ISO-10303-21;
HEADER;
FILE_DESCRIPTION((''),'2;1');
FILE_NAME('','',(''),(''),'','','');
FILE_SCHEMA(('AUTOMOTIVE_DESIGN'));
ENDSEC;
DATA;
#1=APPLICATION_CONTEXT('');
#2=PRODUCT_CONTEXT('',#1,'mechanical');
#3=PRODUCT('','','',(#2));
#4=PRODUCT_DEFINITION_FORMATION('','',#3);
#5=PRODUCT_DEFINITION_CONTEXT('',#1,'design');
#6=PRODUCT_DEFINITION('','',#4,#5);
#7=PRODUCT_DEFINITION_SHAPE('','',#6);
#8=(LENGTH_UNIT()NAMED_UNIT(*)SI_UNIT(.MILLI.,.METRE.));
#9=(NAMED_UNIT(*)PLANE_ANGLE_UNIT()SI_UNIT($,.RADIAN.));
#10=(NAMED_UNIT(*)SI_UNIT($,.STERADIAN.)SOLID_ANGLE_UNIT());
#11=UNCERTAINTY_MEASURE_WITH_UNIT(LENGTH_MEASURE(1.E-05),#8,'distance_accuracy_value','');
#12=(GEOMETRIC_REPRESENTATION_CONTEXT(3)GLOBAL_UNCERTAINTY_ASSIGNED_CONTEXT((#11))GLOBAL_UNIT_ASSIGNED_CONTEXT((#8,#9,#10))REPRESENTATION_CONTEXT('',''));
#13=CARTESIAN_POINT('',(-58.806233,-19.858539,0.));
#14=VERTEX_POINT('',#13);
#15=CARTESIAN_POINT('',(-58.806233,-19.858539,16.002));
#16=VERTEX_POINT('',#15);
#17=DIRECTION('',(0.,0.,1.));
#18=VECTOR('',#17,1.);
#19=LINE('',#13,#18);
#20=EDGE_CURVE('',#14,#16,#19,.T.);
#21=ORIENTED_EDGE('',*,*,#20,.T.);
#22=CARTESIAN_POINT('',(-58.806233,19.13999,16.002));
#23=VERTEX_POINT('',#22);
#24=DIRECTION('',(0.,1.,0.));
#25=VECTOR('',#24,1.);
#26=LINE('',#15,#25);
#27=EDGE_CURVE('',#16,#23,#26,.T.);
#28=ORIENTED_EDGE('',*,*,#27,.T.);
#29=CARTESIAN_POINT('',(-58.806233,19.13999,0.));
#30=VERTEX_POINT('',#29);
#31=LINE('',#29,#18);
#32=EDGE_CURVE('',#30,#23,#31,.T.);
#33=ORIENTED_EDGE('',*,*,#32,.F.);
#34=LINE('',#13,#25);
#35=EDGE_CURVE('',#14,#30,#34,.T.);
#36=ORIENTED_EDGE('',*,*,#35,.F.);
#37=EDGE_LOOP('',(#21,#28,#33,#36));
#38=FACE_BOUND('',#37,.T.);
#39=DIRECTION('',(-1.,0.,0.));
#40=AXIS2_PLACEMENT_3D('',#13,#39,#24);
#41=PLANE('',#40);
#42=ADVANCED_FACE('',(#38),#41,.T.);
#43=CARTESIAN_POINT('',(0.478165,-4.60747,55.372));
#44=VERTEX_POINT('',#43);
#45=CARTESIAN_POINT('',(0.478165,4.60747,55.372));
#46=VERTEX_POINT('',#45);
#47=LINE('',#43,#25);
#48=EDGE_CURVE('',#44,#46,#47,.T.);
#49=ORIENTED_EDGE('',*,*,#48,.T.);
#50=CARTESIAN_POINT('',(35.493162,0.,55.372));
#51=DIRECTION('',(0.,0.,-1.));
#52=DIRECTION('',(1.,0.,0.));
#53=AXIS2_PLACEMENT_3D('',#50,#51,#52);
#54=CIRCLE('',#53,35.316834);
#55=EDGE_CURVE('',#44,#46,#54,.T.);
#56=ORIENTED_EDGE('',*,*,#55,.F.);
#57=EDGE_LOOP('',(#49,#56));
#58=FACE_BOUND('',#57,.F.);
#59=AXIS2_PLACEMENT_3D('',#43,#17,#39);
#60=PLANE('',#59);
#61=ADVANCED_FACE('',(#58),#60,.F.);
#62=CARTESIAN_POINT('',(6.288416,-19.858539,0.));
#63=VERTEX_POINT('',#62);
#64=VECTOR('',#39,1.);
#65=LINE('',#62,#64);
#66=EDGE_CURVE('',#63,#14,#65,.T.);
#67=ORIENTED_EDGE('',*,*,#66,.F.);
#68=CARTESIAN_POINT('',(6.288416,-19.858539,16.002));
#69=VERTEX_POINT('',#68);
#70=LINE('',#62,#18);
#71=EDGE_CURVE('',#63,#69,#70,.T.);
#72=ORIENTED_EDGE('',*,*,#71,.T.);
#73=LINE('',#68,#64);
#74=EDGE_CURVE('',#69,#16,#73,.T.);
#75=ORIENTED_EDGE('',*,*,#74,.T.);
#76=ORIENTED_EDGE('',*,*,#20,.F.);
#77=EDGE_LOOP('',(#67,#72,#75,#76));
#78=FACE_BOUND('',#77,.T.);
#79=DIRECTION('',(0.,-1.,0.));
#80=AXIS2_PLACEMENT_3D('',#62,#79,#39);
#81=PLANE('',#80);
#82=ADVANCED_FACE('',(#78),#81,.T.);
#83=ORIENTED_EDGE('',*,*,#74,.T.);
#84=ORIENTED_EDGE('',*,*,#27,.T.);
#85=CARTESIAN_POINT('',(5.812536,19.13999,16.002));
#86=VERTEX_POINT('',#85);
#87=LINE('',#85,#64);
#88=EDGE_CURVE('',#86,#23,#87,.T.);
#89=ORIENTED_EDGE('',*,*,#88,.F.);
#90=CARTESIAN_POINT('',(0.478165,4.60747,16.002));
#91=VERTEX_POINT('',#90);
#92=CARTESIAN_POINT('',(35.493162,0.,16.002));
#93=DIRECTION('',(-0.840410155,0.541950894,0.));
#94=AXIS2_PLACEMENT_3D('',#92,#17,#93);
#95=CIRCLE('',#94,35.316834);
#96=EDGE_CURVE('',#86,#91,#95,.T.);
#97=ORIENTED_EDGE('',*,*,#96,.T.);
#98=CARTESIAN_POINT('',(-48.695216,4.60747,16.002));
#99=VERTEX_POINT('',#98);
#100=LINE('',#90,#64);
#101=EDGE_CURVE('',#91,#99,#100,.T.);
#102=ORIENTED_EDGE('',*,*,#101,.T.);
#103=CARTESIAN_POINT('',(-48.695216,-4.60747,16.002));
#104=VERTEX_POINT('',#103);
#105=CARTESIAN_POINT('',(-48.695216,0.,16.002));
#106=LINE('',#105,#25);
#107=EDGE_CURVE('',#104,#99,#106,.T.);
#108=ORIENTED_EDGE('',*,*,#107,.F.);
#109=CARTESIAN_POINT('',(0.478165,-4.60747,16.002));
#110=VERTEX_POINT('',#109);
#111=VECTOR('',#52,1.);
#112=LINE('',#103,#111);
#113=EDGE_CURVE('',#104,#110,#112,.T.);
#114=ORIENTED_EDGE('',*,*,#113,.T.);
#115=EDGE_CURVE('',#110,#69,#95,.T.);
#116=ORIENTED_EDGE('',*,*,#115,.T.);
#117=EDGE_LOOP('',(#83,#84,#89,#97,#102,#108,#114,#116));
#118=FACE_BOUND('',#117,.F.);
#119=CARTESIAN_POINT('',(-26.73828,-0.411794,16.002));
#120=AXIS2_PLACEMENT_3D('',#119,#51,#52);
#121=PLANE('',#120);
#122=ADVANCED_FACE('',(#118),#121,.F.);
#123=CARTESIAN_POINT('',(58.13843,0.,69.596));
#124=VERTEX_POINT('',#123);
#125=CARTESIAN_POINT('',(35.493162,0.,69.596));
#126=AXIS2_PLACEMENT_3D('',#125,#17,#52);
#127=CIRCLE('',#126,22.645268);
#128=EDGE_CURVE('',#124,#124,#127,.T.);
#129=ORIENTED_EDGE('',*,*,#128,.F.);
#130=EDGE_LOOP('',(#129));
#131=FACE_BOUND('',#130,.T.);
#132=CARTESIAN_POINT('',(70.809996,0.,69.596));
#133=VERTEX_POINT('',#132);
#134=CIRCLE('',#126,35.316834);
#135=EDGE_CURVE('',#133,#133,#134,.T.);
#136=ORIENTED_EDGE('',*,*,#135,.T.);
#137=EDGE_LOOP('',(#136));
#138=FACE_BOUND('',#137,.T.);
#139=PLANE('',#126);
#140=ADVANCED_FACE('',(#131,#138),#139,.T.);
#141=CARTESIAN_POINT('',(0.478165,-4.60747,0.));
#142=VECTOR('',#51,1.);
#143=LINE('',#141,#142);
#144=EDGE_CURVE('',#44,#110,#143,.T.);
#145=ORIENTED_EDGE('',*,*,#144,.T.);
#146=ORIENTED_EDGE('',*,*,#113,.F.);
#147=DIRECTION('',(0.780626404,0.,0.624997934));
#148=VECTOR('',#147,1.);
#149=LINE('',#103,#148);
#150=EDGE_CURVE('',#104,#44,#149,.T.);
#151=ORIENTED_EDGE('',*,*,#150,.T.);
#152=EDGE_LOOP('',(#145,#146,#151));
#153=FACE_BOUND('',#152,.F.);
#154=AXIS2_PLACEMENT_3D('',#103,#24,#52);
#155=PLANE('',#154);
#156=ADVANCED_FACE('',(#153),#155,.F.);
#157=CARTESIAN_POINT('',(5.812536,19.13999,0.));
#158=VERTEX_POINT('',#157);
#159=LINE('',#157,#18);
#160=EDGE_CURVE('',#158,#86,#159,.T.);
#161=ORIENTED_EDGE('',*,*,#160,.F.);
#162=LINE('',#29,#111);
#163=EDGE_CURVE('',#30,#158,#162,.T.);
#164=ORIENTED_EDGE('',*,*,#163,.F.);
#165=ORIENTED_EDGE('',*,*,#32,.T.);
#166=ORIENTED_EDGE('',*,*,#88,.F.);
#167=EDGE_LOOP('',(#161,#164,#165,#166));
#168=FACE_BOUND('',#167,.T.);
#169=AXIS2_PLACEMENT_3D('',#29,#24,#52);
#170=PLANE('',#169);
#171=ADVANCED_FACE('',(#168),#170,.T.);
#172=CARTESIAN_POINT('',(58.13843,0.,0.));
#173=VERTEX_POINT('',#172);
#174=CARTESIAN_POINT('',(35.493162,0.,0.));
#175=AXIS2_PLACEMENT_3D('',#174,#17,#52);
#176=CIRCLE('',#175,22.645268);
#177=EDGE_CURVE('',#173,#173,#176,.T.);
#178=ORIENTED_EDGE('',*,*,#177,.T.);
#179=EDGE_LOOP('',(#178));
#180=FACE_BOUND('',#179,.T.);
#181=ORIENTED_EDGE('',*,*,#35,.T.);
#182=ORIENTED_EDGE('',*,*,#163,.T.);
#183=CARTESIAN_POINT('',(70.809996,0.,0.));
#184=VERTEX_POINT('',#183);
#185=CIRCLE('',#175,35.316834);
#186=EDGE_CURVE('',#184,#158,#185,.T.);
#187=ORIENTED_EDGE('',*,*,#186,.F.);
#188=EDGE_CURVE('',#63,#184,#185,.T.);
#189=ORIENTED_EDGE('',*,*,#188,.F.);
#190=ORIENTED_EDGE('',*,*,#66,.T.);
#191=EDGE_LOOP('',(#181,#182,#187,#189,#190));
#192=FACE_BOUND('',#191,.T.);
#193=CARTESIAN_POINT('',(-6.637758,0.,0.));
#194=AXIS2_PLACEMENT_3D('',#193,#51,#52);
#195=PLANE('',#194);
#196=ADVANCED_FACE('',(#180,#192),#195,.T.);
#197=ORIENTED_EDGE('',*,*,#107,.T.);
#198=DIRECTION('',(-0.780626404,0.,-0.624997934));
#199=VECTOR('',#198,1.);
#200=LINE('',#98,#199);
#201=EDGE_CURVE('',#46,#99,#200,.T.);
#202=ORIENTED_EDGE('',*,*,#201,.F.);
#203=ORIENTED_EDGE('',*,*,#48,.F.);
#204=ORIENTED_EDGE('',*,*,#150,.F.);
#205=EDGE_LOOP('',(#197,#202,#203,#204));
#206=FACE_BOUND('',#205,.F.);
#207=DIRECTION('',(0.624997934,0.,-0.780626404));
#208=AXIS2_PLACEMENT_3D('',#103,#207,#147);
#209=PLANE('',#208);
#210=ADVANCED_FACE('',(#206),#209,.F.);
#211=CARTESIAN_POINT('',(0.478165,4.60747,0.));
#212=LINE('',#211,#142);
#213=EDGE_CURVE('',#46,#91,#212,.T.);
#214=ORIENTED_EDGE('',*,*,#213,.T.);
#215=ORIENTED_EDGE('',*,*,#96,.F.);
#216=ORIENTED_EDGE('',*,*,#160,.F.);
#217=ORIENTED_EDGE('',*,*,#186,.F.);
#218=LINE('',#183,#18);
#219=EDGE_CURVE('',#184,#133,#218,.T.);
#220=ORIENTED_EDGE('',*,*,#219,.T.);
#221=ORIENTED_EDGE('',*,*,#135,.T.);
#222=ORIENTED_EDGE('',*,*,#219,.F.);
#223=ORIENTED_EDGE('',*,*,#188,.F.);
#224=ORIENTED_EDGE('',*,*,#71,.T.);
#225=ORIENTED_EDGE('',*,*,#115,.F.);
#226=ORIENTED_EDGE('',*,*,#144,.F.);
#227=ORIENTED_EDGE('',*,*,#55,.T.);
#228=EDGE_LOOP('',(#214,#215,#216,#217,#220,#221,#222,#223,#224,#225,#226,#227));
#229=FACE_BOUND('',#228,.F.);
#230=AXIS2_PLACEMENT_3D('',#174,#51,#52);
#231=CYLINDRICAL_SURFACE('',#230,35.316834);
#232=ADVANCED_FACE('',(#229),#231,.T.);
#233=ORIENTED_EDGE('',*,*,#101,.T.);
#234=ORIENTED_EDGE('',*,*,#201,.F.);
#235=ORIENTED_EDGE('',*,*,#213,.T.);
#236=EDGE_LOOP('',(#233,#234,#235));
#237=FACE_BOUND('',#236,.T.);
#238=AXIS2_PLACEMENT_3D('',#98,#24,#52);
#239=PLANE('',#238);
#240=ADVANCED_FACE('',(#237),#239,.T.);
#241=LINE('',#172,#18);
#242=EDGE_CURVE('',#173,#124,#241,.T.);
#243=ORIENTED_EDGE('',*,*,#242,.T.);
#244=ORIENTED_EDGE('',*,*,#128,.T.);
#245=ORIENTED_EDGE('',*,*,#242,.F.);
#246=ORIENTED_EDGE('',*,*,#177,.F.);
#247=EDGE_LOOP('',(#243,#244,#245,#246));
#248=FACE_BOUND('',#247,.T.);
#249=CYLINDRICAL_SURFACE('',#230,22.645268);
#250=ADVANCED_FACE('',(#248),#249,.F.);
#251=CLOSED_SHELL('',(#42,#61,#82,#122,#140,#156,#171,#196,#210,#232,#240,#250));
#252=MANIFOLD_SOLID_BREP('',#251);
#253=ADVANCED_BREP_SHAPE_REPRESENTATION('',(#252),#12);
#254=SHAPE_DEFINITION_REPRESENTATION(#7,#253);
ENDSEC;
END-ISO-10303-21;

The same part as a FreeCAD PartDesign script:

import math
import FreeCAD as App
import Part
import Sketcher
from FreeCAD import Vector
Q = App.Units.Quantity


def add_polygon(sketch, points):
    """Adds a closed chain of lines whose ends are joined by coincident constraints."""
    first, n = sketch.GeometryCount, len(points)
    for a, b in zip(points, points[1:] + points[:1]):
        sketch.addGeometry(Part.LineSegment(App.Vector(*a, 0), App.Vector(*b, 0)), False)
    for i in range(n):
        sketch.addConstraint(Sketcher.Constraint("Coincident", first + i, 2, first + (i + 1) % n, 1))

doc = App.newDocument("Part")
body = doc.addObject("PartDesign::Body", "Body")

sketch1 = body.newObject("Sketcher::SketchObject", "Sketch")
sketch1.AttachmentSupport = (doc.getObject("XY_Plane"), [""])
sketch1.MapMode = "FlatFace"
sketch1.addGeometry(Part.Circle(Vector(35.493162, 0, 0), Vector(0, 0, 1), 35.316834), False)
sketch1.addGeometry(Part.Circle(Vector(35.493162, 0, 0), Vector(0, 0, 1), 22.645268), False)
sketch1.addConstraint(Sketcher.Constraint("Coincident", 1, 3, 0, 3))
sketch1.addConstraint(Sketcher.Constraint("PointOnObject", 0, 3, -1))
sketch1.addConstraint(Sketcher.Constraint("Diameter", 0, 70.633668))
sketch1.addConstraint(Sketcher.Constraint("Diameter", 1, 45.290536))
sketch1.addConstraint(Sketcher.Constraint("DistanceX", -1, 1, 0, 3, 35.493162))
pad1 = body.newObject("PartDesign::Pad", "Pad")
pad1.Profile = sketch1
pad1.Length = Q("2.74 in")

sketch2 = body.newObject("Sketcher::SketchObject", "Sketch001")
sketch2.AttachmentSupport = (doc.getObject("XY_Plane"), [""])
sketch2.MapMode = "FlatFace"
sketch2.addGeometry(Part.LineSegment(Vector(-58.806233, 19.13999, 0), Vector(5.812536, 19.13999, 0)), False)
sketch2.addGeometry(Part.ArcOfCircle(Part.Circle(Vector(35.493162, 0, 0), Vector(0, 0, 1), 35.316834), math.radians(147.183456), math.radians(214.214779)), False)
sketch2.addGeometry(Part.LineSegment(Vector(6.288416, -19.858539, 0), Vector(-58.806233, -19.858539, 0)), False)
sketch2.addGeometry(Part.LineSegment(Vector(-58.806233, -19.858539, 0), Vector(-58.806233, 19.13999, 0)), False)
sketch2.addConstraint(Sketcher.Constraint("Coincident", 0, 2, 1, 1))
sketch2.addConstraint(Sketcher.Constraint("Coincident", 1, 2, 2, 1))
sketch2.addConstraint(Sketcher.Constraint("Coincident", 2, 2, 3, 1))
sketch2.addConstraint(Sketcher.Constraint("Coincident", 3, 2, 0, 1))
sketch2.addConstraint(Sketcher.Constraint("Horizontal", 0))
sketch2.addConstraint(Sketcher.Constraint("Horizontal", 2))
sketch2.addConstraint(Sketcher.Constraint("Vertical", 3))
sketch2.addConstraint(Sketcher.Constraint("PointOnObject", 1, 3, -1))
sketch2.addConstraint(Sketcher.Constraint("Radius", 1, 35.316834))
sketch2.addConstraint(Sketcher.Constraint("DistanceX", 0, 1, 0, 2, 64.618769))
sketch2.addConstraint(Sketcher.Constraint("DistanceX", 2, 2, 2, 1, 65.094649))
sketch2.addConstraint(Sketcher.Constraint("DistanceY", 3, 1, 3, 2, 38.998529))
sketch2.addConstraint(Sketcher.Constraint("DistanceX", -1, 1, 1, 3, 35.493162))
pad2 = body.newObject("PartDesign::Pad", "Pad001")
pad2.Profile = sketch2
pad2.Length = Q("0.63 in")

sketch3 = body.newObject("Sketcher::SketchObject", "Sketch002")
sketch3.AttachmentSupport = (doc.getObject("XY_Plane"), [""])
sketch3.MapMode = "FlatFace"
add_polygon(sketch3, [(-22.446057, -4.60747), (-22.446057, 4.60747), (9.170542, 4.60747), (9.170542, -4.60747)])
sketch3.addConstraint(Sketcher.Constraint("Vertical", 0))
sketch3.addConstraint(Sketcher.Constraint("Horizontal", 1))
sketch3.addConstraint(Sketcher.Constraint("Vertical", 2))
sketch3.addConstraint(Sketcher.Constraint("Horizontal", 3))
sketch3.addConstraint(Sketcher.Constraint("DistanceX", 1, 1, 1, 2, 31.616599))
sketch3.addConstraint(Sketcher.Constraint("DistanceY", 0, 1, 0, 2, 9.21494))
sketch3.addConstraint(Sketcher.Constraint("DistanceY", -1, 1, 0, 2, 4.60747))
sketch3.addConstraint(Sketcher.Constraint("DistanceX", -1, 1, 1, 2, 9.170542))
pad3 = body.newObject("PartDesign::Pad", "Pad002")
pad3.Profile = sketch3
pad3.Length = Q("2.18 in")

sketch4 = body.newObject("Sketcher::SketchObject", "Sketch003")
sketch4.AttachmentSupport = (doc.getObject("XY_Plane"), [""])
sketch4.MapMode = "FlatFace"
sketch4.AttachmentOffset = App.Placement(Vector(0, 0, 0.63 * 25.4), App.Rotation())
add_polygon(sketch4, [(-48.695216, 4.60747), (-48.695216, -4.60747), (-22.446057, -4.60747), (-22.446057, 4.60747)])
sketch4.addConstraint(Sketcher.Constraint("Vertical", 0))
sketch4.addConstraint(Sketcher.Constraint("Horizontal", 1))
sketch4.addConstraint(Sketcher.Constraint("Vertical", 2))
sketch4.addConstraint(Sketcher.Constraint("Horizontal", 3))
sketch4.addConstraint(Sketcher.Constraint("DistanceX", 1, 1, 1, 2, 26.249159))
sketch4.addConstraint(Sketcher.Constraint("DistanceY", 0, 2, 0, 1, 9.21494))
sketch4.addConstraint(Sketcher.Constraint("DistanceY", 0, 2, -1, 1, 4.60747))
sketch4.addConstraint(Sketcher.Constraint("DistanceX", 0, 2, -1, 1, 48.695216))
pad4 = body.newObject("PartDesign::Pad", "Pad003")
pad4.Profile = sketch4
pad4.Length = Q("1.55 in")

sketch5 = body.newObject("Sketcher::SketchObject", "Sketch004")
sketch5.AttachmentSupport = (doc.getObject("XZ_Plane"), [""])
sketch5.MapMode = "FlatFace"
sketch5.AttachmentOffset = App.Placement(Vector(0, 0, 4.60747), App.Rotation())
add_polygon(sketch5, [(-48.695216, 16.002), (0.478165, 55.372), (-48.695216, 55.372)])
sketch5.addConstraint(Sketcher.Constraint("Horizontal", 1))
sketch5.addConstraint(Sketcher.Constraint("Vertical", 2))
sketch5.addConstraint(Sketcher.Constraint("DistanceY", 2, 2, 2, 1, Q("1.55 in")))
sketch5.addConstraint(Sketcher.Constraint("DistanceY", -1, 1, 0, 2, Q("2.18 in")))
sketch5.addConstraint(Sketcher.Constraint("DistanceX", 1, 2, 1, 1, 49.173381))
sketch5.addConstraint(Sketcher.Constraint("DistanceX", -1, 1, 0, 2, 0.478165))
pocket1 = body.newObject("PartDesign::Pocket", "Pocket")
pocket1.Profile = sketch5
pocket1.Length = Q("1.5 in")

doc.recompute()
